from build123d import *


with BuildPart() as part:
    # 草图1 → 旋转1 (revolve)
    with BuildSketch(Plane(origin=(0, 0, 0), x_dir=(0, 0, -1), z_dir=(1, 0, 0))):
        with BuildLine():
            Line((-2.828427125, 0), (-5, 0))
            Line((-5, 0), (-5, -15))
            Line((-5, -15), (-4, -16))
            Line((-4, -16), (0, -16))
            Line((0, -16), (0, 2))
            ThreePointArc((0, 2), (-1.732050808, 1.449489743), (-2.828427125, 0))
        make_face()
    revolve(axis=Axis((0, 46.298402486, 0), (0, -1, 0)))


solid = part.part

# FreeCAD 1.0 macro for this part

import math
import FreeCAD as App
import Part
import Sketcher
from FreeCAD import Vector
Q = App.Units.Quantity

doc = App.newDocument("Part")
body = doc.addObject("PartDesign::Body", "Body")

sketch1 = doc.addObject("Sketcher::SketchObject", "Sketch")
body.addObject(sketch1)
sketch1.AttachmentSupport = (doc.YZ_Plane, [""])
sketch1.MapMode = "FlatFace"
sketch1.addGeometry(Part.LineSegment(Vector(0, 2.8, 0), Vector(0, 5, 0)), False)
sketch1.addGeometry(Part.LineSegment(Vector(0, 5, 0), Vector(-15, 5, 0)), False)
sketch1.addGeometry(Part.LineSegment(Vector(-15, 5, 0), Vector(-16, 4, 0)), False)
sketch1.addGeometry(Part.LineSegment(Vector(-16, 4, 0), Vector(-16, 0, 0)), False)
sketch1.addGeometry(Part.LineSegment(Vector(-16, 0, 0), Vector(2, 0, 0)), False)
sketch1.addGeometry(Part.ArcOfCircle(Part.Circle(Vector(-1, 0, 0), Vector(0, 0, 1), 3), math.radians(0), math.radians(71)), False)
sketch1.addConstraint(Sketcher.Constraint("Coincident", 0, 2, 1, 1))
sketch1.addConstraint(Sketcher.Constraint("Coincident", 1, 2, 2, 1))
sketch1.addConstraint(Sketcher.Constraint("Coincident", 2, 2, 3, 1))
sketch1.addConstraint(Sketcher.Constraint("Coincident", 3, 2, 4, 1))
sketch1.addConstraint(Sketcher.Constraint("Coincident", 4, 2, 5, 1))
sketch1.addConstraint(Sketcher.Constraint("Coincident", 5, 2, 0, 1))
sketch1.addConstraint(Sketcher.Constraint("Vertical", 0))
sketch1.addConstraint(Sketcher.Constraint("Horizontal", 1))
sketch1.addConstraint(Sketcher.Constraint("Vertical", 3))
sketch1.addConstraint(Sketcher.Constraint("Horizontal", 4))
sketch1.addConstraint(Sketcher.Constraint("PointOnObject", 5, 3, -1))
sketch1.addConstraint(Sketcher.Constraint("PointOnObject", 0, 2, -2))
sketch1.addConstraint(Sketcher.Constraint("PointOnObject", 3, 2, -1))
sketch1.addConstraint(Sketcher.Constraint("Radius", 5, Q("3 mm")))
sketch1.addConstraint(Sketcher.Constraint("DistanceX", 1, 2, 1, 1, Q("15 mm")))
sketch1.addConstraint(Sketcher.Constraint("DistanceX", 4, 1, 4, 2, Q("18 mm")))
sketch1.addConstraint(Sketcher.Constraint("DistanceY", 3, 2, 3, 1, Q("4 mm")))
sketch1.addConstraint(Sketcher.Constraint("Angle", 2, Q("-135 deg")))
sketch1.addConstraint(Sketcher.Constraint("DistanceX", 5, 3, -1, 1, Q("1 mm")))
revolution = doc.addObject("PartDesign::Revolution", "Revolution")
body.addObject(revolution)
revolution.Profile = sketch1
revolution.ReferenceAxis = (sketch1, ["H_Axis"])
revolution.Angle = 360

doc.recompute()
